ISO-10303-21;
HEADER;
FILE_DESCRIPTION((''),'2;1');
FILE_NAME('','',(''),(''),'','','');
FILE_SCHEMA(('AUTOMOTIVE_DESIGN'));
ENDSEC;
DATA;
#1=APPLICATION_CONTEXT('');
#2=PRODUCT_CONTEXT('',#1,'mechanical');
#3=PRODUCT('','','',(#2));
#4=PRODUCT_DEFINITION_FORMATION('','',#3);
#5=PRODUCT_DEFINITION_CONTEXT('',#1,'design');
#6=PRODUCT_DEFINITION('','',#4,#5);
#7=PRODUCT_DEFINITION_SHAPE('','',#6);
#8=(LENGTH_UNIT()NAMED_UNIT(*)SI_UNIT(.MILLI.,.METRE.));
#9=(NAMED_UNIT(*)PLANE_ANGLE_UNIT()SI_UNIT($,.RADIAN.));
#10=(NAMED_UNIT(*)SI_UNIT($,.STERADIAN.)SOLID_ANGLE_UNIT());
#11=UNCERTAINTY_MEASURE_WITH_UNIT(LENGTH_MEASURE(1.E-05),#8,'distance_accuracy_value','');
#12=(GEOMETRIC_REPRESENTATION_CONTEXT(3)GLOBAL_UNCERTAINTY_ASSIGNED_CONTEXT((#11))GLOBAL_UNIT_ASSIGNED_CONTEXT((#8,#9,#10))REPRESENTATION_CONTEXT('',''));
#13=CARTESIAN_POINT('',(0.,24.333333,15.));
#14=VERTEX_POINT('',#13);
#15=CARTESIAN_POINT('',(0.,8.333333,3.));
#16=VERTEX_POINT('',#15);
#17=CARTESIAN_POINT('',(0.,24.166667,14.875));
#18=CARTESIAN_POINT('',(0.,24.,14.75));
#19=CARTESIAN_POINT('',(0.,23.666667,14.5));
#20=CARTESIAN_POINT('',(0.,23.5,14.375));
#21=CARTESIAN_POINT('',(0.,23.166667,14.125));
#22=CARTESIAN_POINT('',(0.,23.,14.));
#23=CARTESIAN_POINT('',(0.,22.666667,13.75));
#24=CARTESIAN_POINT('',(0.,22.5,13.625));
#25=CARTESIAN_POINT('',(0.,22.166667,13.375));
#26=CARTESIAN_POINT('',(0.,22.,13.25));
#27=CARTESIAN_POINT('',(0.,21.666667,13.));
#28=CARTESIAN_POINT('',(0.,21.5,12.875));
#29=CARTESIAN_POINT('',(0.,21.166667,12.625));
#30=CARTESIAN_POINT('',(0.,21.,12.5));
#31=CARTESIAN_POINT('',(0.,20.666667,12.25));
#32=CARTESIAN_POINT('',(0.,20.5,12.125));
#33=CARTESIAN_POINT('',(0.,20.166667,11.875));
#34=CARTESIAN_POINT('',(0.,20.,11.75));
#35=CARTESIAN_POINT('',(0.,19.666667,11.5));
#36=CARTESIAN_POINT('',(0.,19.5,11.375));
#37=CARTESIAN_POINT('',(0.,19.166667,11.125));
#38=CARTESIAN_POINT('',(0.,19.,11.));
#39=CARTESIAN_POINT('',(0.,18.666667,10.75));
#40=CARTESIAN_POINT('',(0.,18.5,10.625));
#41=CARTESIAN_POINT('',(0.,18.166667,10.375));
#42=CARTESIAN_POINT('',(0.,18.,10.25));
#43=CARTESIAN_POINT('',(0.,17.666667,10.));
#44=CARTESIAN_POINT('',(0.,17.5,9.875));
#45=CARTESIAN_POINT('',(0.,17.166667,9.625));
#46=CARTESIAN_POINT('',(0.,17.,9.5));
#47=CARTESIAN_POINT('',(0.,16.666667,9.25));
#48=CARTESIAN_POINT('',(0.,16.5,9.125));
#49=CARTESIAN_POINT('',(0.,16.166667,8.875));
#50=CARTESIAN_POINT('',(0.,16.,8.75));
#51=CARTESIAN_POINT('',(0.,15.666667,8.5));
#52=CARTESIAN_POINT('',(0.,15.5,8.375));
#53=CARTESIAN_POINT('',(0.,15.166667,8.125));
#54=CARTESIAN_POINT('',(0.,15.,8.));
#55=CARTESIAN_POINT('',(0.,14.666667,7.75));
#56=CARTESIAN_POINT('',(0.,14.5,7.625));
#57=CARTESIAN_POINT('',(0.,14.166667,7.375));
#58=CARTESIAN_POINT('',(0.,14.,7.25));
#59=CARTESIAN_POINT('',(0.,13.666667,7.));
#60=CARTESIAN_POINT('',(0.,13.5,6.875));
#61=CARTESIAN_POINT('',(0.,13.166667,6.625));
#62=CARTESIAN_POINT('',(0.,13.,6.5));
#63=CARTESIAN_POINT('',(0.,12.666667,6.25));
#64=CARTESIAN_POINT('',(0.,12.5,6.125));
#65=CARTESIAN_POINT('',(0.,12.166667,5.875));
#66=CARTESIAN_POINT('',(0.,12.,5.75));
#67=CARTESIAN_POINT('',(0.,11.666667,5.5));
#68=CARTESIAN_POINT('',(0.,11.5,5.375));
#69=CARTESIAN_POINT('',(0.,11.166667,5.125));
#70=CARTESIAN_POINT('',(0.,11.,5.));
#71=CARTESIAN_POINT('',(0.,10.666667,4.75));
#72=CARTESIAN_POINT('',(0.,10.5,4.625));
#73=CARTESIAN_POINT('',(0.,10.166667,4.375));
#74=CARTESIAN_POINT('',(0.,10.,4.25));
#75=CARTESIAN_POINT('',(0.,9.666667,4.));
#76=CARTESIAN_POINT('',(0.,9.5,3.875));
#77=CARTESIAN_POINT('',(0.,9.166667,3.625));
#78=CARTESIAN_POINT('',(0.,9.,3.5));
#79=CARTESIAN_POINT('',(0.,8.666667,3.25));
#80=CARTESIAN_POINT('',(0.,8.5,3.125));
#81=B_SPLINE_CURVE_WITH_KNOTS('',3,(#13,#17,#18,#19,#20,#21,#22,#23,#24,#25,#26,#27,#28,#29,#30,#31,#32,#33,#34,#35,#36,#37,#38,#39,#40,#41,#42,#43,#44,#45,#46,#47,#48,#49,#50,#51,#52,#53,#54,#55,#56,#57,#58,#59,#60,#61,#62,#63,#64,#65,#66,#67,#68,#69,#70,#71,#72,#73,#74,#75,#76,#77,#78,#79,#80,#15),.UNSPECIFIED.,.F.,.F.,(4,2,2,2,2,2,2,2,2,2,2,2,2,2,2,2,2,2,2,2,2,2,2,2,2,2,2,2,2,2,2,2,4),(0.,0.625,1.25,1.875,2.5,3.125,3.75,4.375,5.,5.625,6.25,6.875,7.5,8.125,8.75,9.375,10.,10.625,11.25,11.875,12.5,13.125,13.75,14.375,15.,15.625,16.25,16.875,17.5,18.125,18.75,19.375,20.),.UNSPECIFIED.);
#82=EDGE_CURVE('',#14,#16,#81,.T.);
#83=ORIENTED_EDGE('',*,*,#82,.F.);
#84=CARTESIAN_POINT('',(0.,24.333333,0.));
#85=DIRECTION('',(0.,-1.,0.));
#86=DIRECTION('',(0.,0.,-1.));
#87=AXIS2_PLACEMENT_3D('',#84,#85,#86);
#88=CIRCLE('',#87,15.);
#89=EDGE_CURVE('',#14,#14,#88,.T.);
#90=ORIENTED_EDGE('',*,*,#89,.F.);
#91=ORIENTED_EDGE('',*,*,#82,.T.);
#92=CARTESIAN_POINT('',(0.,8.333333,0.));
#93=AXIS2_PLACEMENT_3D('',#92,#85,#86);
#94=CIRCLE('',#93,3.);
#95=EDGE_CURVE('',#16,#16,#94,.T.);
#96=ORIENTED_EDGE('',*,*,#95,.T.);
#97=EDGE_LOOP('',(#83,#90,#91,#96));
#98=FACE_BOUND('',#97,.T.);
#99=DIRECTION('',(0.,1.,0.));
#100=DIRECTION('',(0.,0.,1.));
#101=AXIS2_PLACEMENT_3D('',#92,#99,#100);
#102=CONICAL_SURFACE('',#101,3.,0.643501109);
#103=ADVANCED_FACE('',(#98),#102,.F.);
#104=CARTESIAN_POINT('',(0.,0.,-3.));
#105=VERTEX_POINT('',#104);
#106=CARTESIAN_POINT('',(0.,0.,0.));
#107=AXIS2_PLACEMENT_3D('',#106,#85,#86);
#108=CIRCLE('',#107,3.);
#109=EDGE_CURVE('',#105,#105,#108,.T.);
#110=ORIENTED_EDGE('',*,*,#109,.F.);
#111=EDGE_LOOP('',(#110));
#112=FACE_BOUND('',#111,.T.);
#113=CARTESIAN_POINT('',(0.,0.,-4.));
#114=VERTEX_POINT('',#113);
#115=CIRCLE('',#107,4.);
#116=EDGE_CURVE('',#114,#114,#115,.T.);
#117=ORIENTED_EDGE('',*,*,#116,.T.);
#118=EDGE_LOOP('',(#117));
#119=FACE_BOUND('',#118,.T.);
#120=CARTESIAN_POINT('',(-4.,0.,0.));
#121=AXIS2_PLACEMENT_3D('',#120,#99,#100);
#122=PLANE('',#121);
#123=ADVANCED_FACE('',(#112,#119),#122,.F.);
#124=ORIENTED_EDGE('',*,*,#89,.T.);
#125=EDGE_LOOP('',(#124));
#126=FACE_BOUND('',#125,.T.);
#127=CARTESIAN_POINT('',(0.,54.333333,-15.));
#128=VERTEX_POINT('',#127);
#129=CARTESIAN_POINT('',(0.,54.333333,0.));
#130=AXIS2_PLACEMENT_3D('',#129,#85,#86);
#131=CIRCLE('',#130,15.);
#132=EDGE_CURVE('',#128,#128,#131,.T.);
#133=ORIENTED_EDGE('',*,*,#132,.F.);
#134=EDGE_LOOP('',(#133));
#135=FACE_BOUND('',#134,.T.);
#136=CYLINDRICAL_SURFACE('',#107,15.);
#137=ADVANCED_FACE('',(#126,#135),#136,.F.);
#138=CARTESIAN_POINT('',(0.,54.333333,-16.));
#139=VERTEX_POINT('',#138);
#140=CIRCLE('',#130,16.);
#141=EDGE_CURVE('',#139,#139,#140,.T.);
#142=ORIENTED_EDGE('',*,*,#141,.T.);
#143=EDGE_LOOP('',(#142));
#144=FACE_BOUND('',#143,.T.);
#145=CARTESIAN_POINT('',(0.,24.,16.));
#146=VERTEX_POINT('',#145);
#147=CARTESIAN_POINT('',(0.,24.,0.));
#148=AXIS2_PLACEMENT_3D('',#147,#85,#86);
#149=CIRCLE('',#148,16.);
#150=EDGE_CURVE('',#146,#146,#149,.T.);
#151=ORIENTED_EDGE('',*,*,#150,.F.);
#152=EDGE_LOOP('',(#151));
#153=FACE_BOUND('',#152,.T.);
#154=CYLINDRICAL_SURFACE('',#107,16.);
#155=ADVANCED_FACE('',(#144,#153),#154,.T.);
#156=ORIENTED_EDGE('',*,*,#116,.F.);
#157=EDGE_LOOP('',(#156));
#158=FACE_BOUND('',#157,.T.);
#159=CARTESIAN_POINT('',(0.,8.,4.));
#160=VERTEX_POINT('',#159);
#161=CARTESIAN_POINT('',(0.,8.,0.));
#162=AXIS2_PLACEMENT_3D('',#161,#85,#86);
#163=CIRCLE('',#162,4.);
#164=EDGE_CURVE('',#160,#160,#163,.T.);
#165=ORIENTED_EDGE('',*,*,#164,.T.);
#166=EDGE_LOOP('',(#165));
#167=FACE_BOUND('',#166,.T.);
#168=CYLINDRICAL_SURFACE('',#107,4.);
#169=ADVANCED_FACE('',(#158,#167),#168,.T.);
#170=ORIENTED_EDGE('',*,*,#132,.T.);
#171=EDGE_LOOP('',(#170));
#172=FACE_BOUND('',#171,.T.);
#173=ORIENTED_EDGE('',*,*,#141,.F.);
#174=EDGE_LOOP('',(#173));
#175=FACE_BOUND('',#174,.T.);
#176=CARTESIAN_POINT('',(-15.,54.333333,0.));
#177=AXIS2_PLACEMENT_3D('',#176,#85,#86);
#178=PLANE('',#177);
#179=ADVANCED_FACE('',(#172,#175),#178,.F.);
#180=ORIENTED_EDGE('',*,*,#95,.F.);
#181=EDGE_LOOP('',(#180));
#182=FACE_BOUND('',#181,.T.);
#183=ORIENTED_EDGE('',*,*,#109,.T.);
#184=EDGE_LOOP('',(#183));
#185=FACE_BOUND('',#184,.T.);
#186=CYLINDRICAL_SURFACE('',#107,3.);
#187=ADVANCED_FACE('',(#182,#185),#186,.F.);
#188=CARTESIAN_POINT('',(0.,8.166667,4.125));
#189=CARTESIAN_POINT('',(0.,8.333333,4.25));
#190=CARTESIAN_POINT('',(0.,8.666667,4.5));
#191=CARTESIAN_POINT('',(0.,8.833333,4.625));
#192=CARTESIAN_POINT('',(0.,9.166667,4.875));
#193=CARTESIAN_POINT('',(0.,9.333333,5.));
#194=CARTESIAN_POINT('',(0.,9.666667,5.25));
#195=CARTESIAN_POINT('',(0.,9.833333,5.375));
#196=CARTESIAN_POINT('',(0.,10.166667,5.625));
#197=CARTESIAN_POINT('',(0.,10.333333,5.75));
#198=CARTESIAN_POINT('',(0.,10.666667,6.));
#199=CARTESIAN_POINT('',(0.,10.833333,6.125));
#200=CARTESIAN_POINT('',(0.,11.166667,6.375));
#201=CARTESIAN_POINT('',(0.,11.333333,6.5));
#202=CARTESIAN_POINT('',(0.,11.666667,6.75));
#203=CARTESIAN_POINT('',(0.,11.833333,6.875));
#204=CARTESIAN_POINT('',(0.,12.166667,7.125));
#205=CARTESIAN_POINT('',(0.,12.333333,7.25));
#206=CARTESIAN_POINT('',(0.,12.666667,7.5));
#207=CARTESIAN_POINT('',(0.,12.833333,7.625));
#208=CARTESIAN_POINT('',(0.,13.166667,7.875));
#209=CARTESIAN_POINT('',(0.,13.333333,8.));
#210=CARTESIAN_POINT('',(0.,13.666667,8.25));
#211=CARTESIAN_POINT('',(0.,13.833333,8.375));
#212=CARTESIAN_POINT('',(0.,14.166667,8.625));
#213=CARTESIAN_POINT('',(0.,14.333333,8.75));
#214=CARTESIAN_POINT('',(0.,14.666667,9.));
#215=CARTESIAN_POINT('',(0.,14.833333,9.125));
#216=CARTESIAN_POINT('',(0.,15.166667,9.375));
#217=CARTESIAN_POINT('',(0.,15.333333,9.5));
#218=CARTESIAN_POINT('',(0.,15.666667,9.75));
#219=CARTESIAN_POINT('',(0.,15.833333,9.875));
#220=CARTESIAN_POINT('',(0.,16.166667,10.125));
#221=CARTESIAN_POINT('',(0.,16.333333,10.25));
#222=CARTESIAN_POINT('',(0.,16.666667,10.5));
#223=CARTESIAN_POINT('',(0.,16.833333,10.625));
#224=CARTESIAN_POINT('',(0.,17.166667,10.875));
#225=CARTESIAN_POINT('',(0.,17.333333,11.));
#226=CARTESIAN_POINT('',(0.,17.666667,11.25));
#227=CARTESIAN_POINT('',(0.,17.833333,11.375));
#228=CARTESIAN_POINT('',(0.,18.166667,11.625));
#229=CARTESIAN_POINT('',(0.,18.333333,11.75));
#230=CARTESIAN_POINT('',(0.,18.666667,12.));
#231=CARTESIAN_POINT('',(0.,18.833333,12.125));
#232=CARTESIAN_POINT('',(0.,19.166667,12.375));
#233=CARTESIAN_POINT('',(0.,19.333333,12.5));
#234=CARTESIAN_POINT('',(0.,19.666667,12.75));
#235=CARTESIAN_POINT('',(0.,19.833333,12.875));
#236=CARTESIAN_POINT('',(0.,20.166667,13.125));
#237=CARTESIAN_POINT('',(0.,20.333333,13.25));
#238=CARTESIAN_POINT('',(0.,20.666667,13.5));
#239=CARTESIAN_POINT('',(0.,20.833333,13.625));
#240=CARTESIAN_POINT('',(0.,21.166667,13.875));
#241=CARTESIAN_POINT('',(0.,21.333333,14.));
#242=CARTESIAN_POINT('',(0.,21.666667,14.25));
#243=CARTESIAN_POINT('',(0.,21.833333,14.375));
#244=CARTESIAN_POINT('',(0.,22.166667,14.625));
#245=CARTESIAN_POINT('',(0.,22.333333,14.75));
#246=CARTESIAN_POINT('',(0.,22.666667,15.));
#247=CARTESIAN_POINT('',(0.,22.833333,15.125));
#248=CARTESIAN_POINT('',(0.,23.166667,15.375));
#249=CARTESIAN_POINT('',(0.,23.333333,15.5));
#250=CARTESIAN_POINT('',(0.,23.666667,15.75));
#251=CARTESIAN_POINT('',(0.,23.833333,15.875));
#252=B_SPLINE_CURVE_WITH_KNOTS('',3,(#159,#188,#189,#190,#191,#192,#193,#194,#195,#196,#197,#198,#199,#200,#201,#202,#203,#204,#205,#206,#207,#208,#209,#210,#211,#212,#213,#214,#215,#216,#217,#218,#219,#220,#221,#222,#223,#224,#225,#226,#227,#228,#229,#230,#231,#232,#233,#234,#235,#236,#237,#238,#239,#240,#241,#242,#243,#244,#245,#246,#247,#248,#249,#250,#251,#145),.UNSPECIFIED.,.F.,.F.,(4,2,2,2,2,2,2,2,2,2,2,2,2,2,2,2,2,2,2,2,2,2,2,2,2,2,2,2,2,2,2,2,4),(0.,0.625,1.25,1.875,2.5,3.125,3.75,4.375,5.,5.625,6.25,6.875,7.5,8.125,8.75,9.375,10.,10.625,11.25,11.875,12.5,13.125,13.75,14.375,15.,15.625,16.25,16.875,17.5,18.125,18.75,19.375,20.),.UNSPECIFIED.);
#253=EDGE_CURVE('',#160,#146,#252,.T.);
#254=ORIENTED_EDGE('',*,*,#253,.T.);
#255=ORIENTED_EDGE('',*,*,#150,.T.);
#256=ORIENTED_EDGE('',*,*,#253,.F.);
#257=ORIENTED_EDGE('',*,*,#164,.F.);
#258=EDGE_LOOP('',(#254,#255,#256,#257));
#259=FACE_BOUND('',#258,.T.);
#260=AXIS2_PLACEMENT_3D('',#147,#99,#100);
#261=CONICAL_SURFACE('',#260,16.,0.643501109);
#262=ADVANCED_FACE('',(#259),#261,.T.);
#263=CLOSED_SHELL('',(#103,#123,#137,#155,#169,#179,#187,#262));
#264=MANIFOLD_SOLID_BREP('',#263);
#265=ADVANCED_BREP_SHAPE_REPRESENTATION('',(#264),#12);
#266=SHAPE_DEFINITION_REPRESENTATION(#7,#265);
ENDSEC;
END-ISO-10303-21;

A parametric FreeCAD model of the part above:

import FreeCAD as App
import Part
import Sketcher
from FreeCAD import Vector


def add_polygon(sketch, points):
    """Adds a closed chain of lines whose ends are joined by coincident constraints."""
    first, n = sketch.GeometryCount, len(points)
    for a, b in zip(points, points[1:] + points[:1]):
        sketch.addGeometry(Part.LineSegment(App.Vector(*a, 0), App.Vector(*b, 0)), False)
    for i in range(n):
        sketch.addConstraint(Sketcher.Constraint("Coincident", first + i, 2, first + (i + 1) % n, 1))

doc = App.newDocument("Part")
params = doc.addObject("Spreadsheet::Sheet", "Params")
for row, (alias, value) in enumerate([
    ("sketch1_width", "1 mm"),
    ("sketch1_height", "30 mm"),
    ("sketch1_height2", "8 mm"),
    ("sketch1_length", "20 mm"),
    ("revolution_angle", "360 deg"),
], start=1):
    params.set(f"A{row}", alias)
    params.set(f"B{row}", "=" + value)
    params.setAlias(f"B{row}", alias)

body = doc.addObject("PartDesign::Body", "Body")

sketch1 = body.newObject("Sketcher::SketchObject", "Sketch")
sketch1.AttachmentSupport = (doc.getObject("XY_Plane"), [""])
sketch1.MapMode = "FlatFace"
add_polygon(sketch1, [(-3, 0), (-3, 8.3), (-15, 24.3), (-15, 54.3), (-16, 54.3), (-16, 24), (-4, 8), (-4, 0)])
sketch1.addConstraint(Sketcher.Constraint("Vertical", 0))
sketch1.addConstraint(Sketcher.Constraint("Vertical", 2))
sketch1.addConstraint(Sketcher.Constraint("Horizontal", 3))
sketch1.addConstraint(Sketcher.Constraint("Vertical", 4))
sketch1.addConstraint(Sketcher.Constraint("Vertical", 6))
sketch1.addConstraint(Sketcher.Constraint("Horizontal", 7))
sketch1.addConstraint(Sketcher.Constraint("PointOnObject", 6, 2, -1))
sketch1.addConstraint(Sketcher.Constraint("Parallel", 1, 5))
sketch1.addConstraint(Sketcher.Constraint("Equal", 3, 7))
sketch1.addConstraint(Sketcher.Constraint("DistanceX", 3, 2, 3, 1, 1.0))
sketch1.addConstraint(Sketcher.Constraint("DistanceY", 2, 1, 2, 2, 30.0))
sketch1.addConstraint(Sketcher.Constraint("DistanceY", 6, 2, 6, 1, 8.0))
sketch1.addConstraint(Sketcher.Constraint("Distance", 1, 20.0))
sketch1.addConstraint(Sketcher.Constraint("DistanceX", 0, 2, -1, 1, 3.0))
sketch1.addConstraint(Sketcher.Constraint("DistanceX", 1, 2, -1, 1, 15.0))
sketch1.addConstraint(Sketcher.Constraint("DistanceY", 0, 1, 0, 2, 8.333333))
sketch1.setExpression("Constraints[17]", "Params.sketch1_width")
sketch1.setExpression("Constraints[18]", "Params.sketch1_height")
sketch1.setExpression("Constraints[19]", "Params.sketch1_height2")
sketch1.setExpression("Constraints[20]", "Params.sketch1_length")
revolution = body.newObject("PartDesign::Revolution", "Revolution")
revolution.Profile = sketch1
revolution.ReferenceAxis = (sketch1, ["V_Axis"])
revolution.setExpression("Angle", "Params.revolution_angle")

doc.recompute()
